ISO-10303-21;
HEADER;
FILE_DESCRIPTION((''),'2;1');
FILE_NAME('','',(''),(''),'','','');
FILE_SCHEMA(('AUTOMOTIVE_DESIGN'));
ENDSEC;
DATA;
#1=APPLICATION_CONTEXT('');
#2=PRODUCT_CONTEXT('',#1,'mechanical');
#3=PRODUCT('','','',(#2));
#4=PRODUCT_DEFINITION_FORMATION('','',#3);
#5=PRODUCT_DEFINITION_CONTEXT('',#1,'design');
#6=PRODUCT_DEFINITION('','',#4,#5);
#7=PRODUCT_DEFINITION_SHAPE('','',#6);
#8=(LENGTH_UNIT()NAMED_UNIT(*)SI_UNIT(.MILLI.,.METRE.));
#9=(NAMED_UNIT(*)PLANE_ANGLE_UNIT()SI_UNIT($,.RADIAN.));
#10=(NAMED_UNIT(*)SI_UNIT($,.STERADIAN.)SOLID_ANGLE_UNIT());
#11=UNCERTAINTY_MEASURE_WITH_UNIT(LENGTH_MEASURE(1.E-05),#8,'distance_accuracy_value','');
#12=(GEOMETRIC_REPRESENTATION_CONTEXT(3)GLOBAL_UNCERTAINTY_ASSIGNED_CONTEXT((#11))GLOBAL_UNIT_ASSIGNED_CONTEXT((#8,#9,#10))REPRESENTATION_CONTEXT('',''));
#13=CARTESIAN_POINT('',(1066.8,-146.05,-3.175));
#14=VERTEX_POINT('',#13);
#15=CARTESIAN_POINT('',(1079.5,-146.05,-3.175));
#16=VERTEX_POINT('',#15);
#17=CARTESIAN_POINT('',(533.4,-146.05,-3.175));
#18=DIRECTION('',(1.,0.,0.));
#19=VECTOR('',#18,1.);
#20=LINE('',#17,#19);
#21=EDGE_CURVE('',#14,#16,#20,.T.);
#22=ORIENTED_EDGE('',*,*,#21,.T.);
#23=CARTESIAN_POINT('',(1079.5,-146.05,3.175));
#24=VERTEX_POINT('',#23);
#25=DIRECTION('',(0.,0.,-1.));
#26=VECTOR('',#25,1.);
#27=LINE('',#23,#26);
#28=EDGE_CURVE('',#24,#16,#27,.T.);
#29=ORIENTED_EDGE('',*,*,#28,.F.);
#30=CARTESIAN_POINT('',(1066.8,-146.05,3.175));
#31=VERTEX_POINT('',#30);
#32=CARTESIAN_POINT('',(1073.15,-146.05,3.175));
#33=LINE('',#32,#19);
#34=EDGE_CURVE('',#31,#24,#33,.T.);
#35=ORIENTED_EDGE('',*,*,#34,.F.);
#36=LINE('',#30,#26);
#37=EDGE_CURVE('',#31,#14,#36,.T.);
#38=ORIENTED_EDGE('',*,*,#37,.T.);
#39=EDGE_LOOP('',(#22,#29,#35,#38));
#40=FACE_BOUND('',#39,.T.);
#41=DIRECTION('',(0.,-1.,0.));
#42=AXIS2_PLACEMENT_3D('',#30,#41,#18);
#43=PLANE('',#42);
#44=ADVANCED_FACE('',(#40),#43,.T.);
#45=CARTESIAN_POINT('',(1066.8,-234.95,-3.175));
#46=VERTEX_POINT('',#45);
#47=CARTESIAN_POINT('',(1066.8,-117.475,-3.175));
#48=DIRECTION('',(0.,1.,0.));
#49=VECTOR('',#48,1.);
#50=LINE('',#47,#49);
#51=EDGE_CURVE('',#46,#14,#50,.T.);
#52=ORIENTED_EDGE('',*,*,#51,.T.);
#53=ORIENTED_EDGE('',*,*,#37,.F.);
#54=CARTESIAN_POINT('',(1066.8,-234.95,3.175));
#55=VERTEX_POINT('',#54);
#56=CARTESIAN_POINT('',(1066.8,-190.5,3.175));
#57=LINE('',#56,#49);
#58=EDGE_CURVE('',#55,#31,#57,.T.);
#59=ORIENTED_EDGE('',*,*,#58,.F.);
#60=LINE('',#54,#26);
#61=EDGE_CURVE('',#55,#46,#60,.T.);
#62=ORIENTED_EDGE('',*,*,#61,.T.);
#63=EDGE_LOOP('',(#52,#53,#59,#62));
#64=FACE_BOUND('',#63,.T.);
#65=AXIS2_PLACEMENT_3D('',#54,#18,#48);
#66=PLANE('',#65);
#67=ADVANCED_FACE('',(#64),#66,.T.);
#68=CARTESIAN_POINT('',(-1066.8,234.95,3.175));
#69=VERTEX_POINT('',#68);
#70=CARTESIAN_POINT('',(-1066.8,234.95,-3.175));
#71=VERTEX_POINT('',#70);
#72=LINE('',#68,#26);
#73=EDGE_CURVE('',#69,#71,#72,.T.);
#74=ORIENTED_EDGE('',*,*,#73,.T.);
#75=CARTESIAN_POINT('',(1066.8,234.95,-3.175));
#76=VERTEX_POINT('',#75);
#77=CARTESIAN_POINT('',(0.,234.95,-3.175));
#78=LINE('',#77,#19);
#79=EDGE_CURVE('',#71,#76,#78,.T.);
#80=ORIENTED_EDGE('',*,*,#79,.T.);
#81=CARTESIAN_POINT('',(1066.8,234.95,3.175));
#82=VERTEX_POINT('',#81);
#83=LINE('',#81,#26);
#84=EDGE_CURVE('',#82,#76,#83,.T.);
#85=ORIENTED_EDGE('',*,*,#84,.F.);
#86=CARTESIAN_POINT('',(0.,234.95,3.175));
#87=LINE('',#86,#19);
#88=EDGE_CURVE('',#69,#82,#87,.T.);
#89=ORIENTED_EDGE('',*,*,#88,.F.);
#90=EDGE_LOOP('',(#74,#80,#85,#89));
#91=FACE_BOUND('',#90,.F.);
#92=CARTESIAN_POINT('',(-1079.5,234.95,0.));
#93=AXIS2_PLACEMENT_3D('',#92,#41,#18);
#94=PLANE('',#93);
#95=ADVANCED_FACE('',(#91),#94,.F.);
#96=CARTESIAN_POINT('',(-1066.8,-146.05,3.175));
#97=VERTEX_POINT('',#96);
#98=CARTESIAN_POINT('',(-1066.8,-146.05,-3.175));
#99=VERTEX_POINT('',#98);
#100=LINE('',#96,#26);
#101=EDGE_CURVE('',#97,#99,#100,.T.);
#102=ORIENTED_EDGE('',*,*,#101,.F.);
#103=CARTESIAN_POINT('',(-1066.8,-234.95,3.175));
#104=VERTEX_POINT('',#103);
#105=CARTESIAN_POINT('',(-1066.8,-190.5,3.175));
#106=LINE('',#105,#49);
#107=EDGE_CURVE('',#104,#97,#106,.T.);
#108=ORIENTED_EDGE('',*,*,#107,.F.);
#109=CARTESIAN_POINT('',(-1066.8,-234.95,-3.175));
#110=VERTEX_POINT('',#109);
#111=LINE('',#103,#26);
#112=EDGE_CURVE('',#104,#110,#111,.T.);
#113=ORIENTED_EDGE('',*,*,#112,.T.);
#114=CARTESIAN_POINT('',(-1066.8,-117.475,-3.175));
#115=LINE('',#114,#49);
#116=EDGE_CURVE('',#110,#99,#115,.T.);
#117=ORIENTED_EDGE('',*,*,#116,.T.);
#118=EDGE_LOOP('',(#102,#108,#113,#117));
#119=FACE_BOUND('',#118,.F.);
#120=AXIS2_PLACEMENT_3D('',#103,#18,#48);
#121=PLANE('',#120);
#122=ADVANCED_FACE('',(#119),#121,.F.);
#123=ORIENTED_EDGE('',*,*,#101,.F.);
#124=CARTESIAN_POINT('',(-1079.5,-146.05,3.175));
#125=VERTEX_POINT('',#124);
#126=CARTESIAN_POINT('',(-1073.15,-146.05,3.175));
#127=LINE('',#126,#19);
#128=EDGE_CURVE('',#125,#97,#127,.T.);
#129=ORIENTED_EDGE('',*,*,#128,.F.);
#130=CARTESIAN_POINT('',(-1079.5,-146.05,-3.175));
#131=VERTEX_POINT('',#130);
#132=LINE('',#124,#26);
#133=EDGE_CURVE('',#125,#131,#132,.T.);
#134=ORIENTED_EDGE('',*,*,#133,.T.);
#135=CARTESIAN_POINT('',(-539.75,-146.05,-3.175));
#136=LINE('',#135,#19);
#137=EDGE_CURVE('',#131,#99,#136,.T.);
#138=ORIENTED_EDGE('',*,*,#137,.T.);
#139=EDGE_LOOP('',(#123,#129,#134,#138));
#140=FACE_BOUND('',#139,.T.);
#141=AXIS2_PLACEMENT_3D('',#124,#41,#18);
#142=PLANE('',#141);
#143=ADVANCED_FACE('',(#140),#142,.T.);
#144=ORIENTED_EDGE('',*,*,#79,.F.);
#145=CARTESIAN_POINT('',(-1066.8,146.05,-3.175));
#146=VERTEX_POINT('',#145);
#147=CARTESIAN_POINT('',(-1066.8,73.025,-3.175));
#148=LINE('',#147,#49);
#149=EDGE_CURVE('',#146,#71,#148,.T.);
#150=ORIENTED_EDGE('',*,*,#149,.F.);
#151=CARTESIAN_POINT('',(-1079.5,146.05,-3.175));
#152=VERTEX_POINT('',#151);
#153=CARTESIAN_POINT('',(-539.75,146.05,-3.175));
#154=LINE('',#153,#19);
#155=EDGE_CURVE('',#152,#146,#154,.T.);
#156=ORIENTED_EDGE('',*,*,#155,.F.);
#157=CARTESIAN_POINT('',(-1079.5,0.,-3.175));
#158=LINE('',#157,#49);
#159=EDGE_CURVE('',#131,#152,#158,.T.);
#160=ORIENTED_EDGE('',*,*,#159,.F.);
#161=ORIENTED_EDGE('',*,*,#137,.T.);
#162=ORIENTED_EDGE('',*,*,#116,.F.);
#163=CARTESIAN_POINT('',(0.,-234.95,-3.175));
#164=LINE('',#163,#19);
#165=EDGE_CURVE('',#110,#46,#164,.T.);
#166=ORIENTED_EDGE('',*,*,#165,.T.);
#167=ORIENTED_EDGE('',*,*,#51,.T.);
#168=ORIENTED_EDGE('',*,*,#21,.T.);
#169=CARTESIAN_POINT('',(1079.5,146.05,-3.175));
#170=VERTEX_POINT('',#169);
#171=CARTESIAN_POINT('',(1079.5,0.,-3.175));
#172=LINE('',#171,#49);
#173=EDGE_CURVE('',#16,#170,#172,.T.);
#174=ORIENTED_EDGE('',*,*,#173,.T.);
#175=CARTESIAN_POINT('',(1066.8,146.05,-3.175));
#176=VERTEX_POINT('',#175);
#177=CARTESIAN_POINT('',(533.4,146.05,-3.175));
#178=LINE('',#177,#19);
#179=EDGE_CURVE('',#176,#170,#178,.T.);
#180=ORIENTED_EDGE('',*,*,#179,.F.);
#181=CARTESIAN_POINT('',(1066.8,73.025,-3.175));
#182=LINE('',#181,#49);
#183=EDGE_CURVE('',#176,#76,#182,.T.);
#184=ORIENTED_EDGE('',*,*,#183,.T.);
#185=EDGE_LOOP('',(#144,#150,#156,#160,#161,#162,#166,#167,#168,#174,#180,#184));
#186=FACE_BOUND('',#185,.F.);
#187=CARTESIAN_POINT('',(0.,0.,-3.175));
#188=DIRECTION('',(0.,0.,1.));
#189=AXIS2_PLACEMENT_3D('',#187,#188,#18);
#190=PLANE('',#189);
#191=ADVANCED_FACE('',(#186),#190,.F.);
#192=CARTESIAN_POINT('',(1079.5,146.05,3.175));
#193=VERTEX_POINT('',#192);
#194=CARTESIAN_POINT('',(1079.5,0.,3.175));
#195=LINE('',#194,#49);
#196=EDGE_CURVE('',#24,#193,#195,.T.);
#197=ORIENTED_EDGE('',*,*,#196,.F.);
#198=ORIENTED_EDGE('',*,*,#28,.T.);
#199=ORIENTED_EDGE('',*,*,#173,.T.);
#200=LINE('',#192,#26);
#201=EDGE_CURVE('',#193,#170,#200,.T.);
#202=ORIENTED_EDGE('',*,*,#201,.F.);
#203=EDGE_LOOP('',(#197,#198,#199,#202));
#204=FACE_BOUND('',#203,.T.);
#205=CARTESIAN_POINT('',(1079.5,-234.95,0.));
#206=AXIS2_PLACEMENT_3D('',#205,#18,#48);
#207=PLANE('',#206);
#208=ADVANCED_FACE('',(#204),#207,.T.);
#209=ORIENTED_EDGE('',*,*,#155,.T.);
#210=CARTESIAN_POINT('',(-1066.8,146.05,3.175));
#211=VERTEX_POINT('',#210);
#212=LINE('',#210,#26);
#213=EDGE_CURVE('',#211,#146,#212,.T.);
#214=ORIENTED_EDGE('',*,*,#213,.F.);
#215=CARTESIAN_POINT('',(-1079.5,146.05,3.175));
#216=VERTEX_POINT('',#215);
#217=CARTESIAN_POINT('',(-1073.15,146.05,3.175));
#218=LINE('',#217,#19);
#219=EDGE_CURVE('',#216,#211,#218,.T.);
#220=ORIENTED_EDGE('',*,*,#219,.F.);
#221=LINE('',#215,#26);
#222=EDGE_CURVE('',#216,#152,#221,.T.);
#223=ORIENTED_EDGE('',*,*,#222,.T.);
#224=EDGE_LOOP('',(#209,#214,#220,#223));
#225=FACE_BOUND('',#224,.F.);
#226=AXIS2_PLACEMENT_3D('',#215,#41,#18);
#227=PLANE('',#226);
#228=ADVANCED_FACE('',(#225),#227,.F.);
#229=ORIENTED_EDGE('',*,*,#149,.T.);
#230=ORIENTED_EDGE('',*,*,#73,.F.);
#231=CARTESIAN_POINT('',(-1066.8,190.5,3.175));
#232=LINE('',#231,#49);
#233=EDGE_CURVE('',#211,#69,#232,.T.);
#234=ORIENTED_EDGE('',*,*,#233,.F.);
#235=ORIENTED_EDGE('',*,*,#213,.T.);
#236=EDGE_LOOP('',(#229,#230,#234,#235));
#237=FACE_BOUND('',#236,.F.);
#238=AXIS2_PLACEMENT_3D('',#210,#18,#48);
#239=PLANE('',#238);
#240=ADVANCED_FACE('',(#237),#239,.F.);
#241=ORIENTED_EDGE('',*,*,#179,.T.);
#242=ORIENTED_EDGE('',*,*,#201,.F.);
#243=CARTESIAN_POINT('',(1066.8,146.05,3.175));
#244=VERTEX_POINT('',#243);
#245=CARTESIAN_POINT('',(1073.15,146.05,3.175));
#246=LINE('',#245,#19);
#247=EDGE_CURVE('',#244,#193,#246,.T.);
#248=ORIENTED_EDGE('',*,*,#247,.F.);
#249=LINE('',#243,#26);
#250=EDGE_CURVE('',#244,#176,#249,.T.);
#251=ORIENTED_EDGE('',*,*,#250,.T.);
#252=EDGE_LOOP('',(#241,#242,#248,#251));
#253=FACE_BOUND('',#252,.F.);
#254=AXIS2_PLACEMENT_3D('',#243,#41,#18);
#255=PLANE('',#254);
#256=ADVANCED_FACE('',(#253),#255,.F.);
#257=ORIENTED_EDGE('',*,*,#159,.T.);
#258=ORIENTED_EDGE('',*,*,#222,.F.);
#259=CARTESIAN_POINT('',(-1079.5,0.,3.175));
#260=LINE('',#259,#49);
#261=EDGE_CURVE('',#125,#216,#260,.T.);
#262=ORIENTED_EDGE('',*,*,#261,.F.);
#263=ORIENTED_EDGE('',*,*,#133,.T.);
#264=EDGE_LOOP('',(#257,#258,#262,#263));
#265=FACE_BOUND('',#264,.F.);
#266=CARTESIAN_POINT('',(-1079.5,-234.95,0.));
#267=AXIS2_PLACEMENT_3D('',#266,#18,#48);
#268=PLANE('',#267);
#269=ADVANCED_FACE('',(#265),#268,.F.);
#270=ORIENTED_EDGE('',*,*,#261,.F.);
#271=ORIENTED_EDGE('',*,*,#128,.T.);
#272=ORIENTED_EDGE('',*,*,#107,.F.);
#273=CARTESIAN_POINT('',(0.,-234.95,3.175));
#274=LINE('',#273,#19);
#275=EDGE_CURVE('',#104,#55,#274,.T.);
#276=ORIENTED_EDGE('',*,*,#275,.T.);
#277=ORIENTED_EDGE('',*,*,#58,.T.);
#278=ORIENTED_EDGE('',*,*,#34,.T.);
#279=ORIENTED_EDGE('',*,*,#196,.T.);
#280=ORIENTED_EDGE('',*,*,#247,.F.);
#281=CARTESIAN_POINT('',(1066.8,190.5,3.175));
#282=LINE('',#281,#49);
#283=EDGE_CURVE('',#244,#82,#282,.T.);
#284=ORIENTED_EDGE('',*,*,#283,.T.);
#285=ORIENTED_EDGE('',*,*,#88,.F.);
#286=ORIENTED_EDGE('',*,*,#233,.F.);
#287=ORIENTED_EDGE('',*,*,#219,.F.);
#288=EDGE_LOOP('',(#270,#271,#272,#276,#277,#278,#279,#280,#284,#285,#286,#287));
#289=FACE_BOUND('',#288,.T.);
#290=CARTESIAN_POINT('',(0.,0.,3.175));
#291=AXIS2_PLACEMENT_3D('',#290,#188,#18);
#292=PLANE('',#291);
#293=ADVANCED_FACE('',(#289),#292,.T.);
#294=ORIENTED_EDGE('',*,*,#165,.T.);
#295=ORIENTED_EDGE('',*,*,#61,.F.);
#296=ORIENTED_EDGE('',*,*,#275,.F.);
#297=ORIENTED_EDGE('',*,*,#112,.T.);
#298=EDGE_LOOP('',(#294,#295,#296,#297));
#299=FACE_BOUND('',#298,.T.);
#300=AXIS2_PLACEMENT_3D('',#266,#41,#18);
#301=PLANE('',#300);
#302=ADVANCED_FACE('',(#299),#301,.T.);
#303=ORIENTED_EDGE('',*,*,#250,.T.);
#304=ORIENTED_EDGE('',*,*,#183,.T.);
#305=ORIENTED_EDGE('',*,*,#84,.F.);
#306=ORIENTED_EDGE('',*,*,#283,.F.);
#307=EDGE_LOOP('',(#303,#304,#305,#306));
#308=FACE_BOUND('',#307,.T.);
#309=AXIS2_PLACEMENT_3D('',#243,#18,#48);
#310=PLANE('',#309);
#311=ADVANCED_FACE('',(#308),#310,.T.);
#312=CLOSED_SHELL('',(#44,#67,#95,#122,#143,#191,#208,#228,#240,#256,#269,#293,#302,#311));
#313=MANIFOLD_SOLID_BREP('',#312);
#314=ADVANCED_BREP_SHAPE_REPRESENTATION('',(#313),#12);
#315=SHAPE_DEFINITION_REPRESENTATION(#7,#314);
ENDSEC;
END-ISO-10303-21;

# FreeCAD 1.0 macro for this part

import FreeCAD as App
import Part
import Sketcher
from FreeCAD import Vector
Q = App.Units.Quantity

doc = App.newDocument("Part")
params = doc.addObject("Spreadsheet::Sheet", "Params")
for row, (alias, value) in enumerate([
    ("sketch1_width", "85 in"),
    ("sketch1_height", "18.5 in"),
    ("pad1_length", "0.25 in"),
    ("sketch2_width", "0.5 in"),
    ("sketch2_height", "3.5 in"),
], start=1):
    params.set(f"A{row}", alias)
    params.set(f"B{row}", "=" + value)
    params.setAlias(f"B{row}", alias)

body = doc.addObject("PartDesign::Body", "Body")

sketch1 = doc.addObject("Sketcher::SketchObject", "Sketch")
body.addObject(sketch1)
sketch1.AttachmentSupport = (doc.XY_Plane, [""])
sketch1.MapMode = "FlatFace"
sketch1.addGeometry(Part.LineSegment(Vector(-1080, 235, 0), Vector(-1080, -235, 0)), False)
sketch1.addGeometry(Part.LineSegment(Vector(-1080, -235, 0), Vector(1080, -235, 0)), False)
sketch1.addGeometry(Part.LineSegment(Vector(1080, -235, 0), Vector(1080, 235, 0)), False)
sketch1.addGeometry(Part.LineSegment(Vector(1080, 235, 0), Vector(-1080, 235, 0)), False)
sketch1.addConstraint(Sketcher.Constraint("Coincident", 0, 2, 1, 1))
sketch1.addConstraint(Sketcher.Constraint("Coincident", 1, 2, 2, 1))
sketch1.addConstraint(Sketcher.Constraint("Coincident", 2, 2, 3, 1))
sketch1.addConstraint(Sketcher.Constraint("Coincident", 3, 2, 0, 1))
sketch1.addConstraint(Sketcher.Constraint("Vertical", 0))
sketch1.addConstraint(Sketcher.Constraint("Horizontal", 1))
sketch1.addConstraint(Sketcher.Constraint("Vertical", 2))
sketch1.addConstraint(Sketcher.Constraint("Horizontal", 3))
sketch1.addConstraint(Sketcher.Constraint("Symmetric", 0, 2, 2, 2, -1, 1))
sketch1.addConstraint(Sketcher.Constraint("DistanceX", 1, 1, 1, 2, Q("85 in")))
sketch1.addConstraint(Sketcher.Constraint("DistanceY", 0, 2, 0, 1, Q("18.5 in")))
sketch1.setExpression("Constraints[9]", "Params.sketch1_width")
sketch1.setExpression("Constraints[10]", "Params.sketch1_height")
pad1 = doc.addObject("PartDesign::Pad", "Pad")
body.addObject(pad1)
pad1.Profile = sketch1
pad1.setExpression("Length", "Params.pad1_length")
pad1.Midplane = True

sketch2 = doc.addObject("Sketcher::SketchObject", "Sketch001")
body.addObject(sketch2)
sketch2.AttachmentSupport = (doc.XY_Plane, [""])
sketch2.MapMode = "FlatFace"
sketch2.AttachmentOffset = App.Placement(Vector(0, 0, 0.125 * 25.4), App.Rotation())
sketch2.addGeometry(Part.LineSegment(Vector(-1080, 235, 0), Vector(-1080, 146, 0)), False)
sketch2.addGeometry(Part.LineSegment(Vector(-1080, 146, 0), Vector(-1067, 146, 0)), False)
sketch2.addGeometry(Part.LineSegment(Vector(-1067, 146, 0), Vector(-1067, 235, 0)), False)
sketch2.addGeometry(Part.LineSegment(Vector(-1067, 235, 0), Vector(-1080, 235, 0)), False)
sketch2.addGeometry(Part.LineSegment(Vector(-1080, -146, 0), Vector(-1080, -235, 0)), False)
sketch2.addGeometry(Part.LineSegment(Vector(-1080, -235, 0), Vector(-1067, -235, 0)), False)
sketch2.addGeometry(Part.LineSegment(Vector(-1067, -235, 0), Vector(-1067, -146, 0)), False)
sketch2.addGeometry(Part.LineSegment(Vector(-1067, -146, 0), Vector(-1080, -146, 0)), False)
sketch2.addGeometry(Part.LineSegment(Vector(1067, 235, 0), Vector(1067, 146, 0)), False)
sketch2.addGeometry(Part.LineSegment(Vector(1067, 146, 0), Vector(1080, 146, 0)), False)
sketch2.addGeometry(Part.LineSegment(Vector(1080, 146, 0), Vector(1080, 235, 0)), False)
sketch2.addGeometry(Part.LineSegment(Vector(1080, 235, 0), Vector(1067, 235, 0)), False)
sketch2.addGeometry(Part.LineSegment(Vector(1067, -146, 0), Vector(1067, -235, 0)), False)
sketch2.addGeometry(Part.LineSegment(Vector(1067, -235, 0), Vector(1080, -235, 0)), False)
sketch2.addGeometry(Part.LineSegment(Vector(1080, -235, 0), Vector(1080, -146, 0)), False)
sketch2.addGeometry(Part.LineSegment(Vector(1080, -146, 0), Vector(1067, -146, 0)), False)
sketch2.addConstraint(Sketcher.Constraint("Coincident", 0, 2, 1, 1))
sketch2.addConstraint(Sketcher.Constraint("Coincident", 1, 2, 2, 1))
sketch2.addConstraint(Sketcher.Constraint("Coincident", 2, 2, 3, 1))
sketch2.addConstraint(Sketcher.Constraint("Coincident", 3, 2, 0, 1))
sketch2.addConstraint(Sketcher.Constraint("Coincident", 4, 2, 5, 1))
sketch2.addConstraint(Sketcher.Constraint("Coincident", 5, 2, 6, 1))
sketch2.addConstraint(Sketcher.Constraint("Coincident", 6, 2, 7, 1))
sketch2.addConstraint(Sketcher.Constraint("Coincident", 7, 2, 4, 1))
sketch2.addConstraint(Sketcher.Constraint("Coincident", 8, 2, 9, 1))
sketch2.addConstraint(Sketcher.Constraint("Coincident", 9, 2, 10, 1))
sketch2.addConstraint(Sketcher.Constraint("Coincident", 10, 2, 11, 1))
sketch2.addConstraint(Sketcher.Constraint("Coincident", 11, 2, 8, 1))
sketch2.addConstraint(Sketcher.Constraint("Coincident", 12, 2, 13, 1))
sketch2.addConstraint(Sketcher.Constraint("Coincident", 13, 2, 14, 1))
sketch2.addConstraint(Sketcher.Constraint("Coincident", 14, 2, 15, 1))
sketch2.addConstraint(Sketcher.Constraint("Coincident", 15, 2, 12, 1))
sketch2.addConstraint(Sketcher.Constraint("Vertical", 0))
sketch2.addConstraint(Sketcher.Constraint("Horizontal", 1))
sketch2.addConstraint(Sketcher.Constraint("Vertical", 2))
sketch2.addConstraint(Sketcher.Constraint("Horizontal", 3))
sketch2.addConstraint(Sketcher.Constraint("Vertical", 4))
sketch2.addConstraint(Sketcher.Constraint("Horizontal", 5))
sketch2.addConstraint(Sketcher.Constraint("Vertical", 6))
sketch2.addConstraint(Sketcher.Constraint("Horizontal", 7))
sketch2.addConstraint(Sketcher.Constraint("Vertical", 8))
sketch2.addConstraint(Sketcher.Constraint("Horizontal", 9))
sketch2.addConstraint(Sketcher.Constraint("Vertical", 10))
sketch2.addConstraint(Sketcher.Constraint("Horizontal", 11))
sketch2.addConstraint(Sketcher.Constraint("Vertical", 12))
sketch2.addConstraint(Sketcher.Constraint("Horizontal", 13))
sketch2.addConstraint(Sketcher.Constraint("Vertical", 14))
sketch2.addConstraint(Sketcher.Constraint("Horizontal", 15))
sketch2.addConstraint(Sketcher.Constraint("Symmetric", 6, 2, 8, 2, -1, 1))
sketch2.addConstraint(Sketcher.Constraint("Symmetric", 4, 2, 10, 2, -1, 1))
sketch2.addConstraint(Sketcher.Constraint("Symmetric", 2, 2, 12, 2, -1, 1))
sketch2.addConstraint(Sketcher.Constraint("Symmetric", 0, 2, 14, 2, -1, 1))
sketch2.addConstraint(Sketcher.Constraint("Symmetric", 1, 2, 8, 2, -2))
sketch2.addConstraint(Sketcher.Constraint("Symmetric", 3, 2, 10, 2, -2))
sketch2.addConstraint(Sketcher.Constraint("DistanceX", 1, 1, 1, 2, Q("0.5 in")))
sketch2.addConstraint(Sketcher.Constraint("DistanceY", 0, 2, 0, 1, Q("3.5 in")))
sketch2.addConstraint(Sketcher.Constraint("DistanceX", 1, 2, -1, 1, Q("42 in")))
sketch2.addConstraint(Sketcher.Constraint("DistanceY", 4, 2, 0, 2, Q("15 in")))
sketch2.setExpression("Constraints[38]", "Params.sketch2_width")
sketch2.setExpression("Constraints[39]", "Params.sketch2_height")
pocket1 = doc.addObject("PartDesign::Pocket", "Pocket")
body.addObject(pocket1)
pocket1.Profile = sketch2
pocket1.Type = "ThroughAll"

doc.recompute()
